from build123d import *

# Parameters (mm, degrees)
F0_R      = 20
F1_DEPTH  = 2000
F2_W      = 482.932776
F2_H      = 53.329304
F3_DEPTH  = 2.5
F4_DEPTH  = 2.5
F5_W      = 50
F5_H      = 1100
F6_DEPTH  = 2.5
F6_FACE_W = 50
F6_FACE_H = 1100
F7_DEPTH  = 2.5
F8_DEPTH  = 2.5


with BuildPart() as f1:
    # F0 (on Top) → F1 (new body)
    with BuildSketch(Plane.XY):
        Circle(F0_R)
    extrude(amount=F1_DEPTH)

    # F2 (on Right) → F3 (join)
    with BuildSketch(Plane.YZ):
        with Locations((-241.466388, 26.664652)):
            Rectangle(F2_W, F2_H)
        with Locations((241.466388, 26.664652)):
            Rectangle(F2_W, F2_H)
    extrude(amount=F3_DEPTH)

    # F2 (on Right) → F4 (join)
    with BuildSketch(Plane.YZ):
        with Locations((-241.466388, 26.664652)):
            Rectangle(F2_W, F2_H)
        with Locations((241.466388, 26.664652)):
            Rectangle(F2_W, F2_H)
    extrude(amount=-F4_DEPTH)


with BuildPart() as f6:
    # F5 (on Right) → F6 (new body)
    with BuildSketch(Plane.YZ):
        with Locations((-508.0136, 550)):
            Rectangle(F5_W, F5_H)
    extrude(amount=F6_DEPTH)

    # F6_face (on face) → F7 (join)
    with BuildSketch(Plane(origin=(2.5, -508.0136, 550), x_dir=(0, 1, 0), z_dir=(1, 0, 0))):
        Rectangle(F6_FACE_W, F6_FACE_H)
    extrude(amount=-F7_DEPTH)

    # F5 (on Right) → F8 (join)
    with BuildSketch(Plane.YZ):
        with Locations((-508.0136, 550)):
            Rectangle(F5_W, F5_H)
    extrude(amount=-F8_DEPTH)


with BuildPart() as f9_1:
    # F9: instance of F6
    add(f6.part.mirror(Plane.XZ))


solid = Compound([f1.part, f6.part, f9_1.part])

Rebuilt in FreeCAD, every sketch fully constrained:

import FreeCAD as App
import Part
import Sketcher

doc = App.newDocument("Part")
body = doc.addObject("PartDesign::Body", "Body")

# Sketch on XY plane
sketch1 = body.newObject("Sketcher::SketchObject", "Sketch")
sketch1.AttachmentSupport = (doc.getObject("XY_Plane"), [""])
sketch1.MapMode = "FlatFace"
sketch1.addGeometry(Part.Circle(App.Vector(0, 0, 0), App.Vector(0, 0, 1), 20), False)
sketch1.addConstraint(Sketcher.Constraint("Coincident", 0, 3, -1, 1))
sketch1.addConstraint(Sketcher.Constraint("Diameter", 0, 40.0))
pad1 = body.newObject("PartDesign::Pad", "Pad")
pad1.Profile = sketch1
pad1.Length = 2000

# Sketch on YZ plane
sketch2 = body.newObject("Sketcher::SketchObject", "Sketch001")
sketch2.AttachmentSupport = (doc.getObject("YZ_Plane"), [""])
sketch2.MapMode = "FlatFace"
sketch2.addGeometry(Part.LineSegment(App.Vector(-483, 53, 0), App.Vector(-483, 0, 0)), False)
sketch2.addGeometry(Part.LineSegment(App.Vector(-483, 0, 0), App.Vector(483, 0, 0)), False)
sketch2.addGeometry(Part.LineSegment(App.Vector(483, 0, 0), App.Vector(483, 53, 0)), False)
sketch2.addGeometry(Part.LineSegment(App.Vector(483, 53, 0), App.Vector(-483, 53, 0)), False)
sketch2.addConstraint(Sketcher.Constraint("Coincident", 0, 2, 1, 1))
sketch2.addConstraint(Sketcher.Constraint("Coincident", 1, 2, 2, 1))
sketch2.addConstraint(Sketcher.Constraint("Coincident", 2, 2, 3, 1))
sketch2.addConstraint(Sketcher.Constraint("Coincident", 3, 2, 0, 1))
sketch2.addConstraint(Sketcher.Constraint("Vertical", 0))
sketch2.addConstraint(Sketcher.Constraint("Horizontal", 1))
sketch2.addConstraint(Sketcher.Constraint("Vertical", 2))
sketch2.addConstraint(Sketcher.Constraint("Horizontal", 3))
sketch2.addConstraint(Sketcher.Constraint("Symmetric", 0, 2, 1, 2, -1, 1))
sketch2.addConstraint(Sketcher.Constraint("DistanceX", 1, 1, 1, 2, 965.865552))
sketch2.addConstraint(Sketcher.Constraint("DistanceY", 0, 2, 0, 1, 53.329304))
pad2 = body.newObject("PartDesign::Pad", "Pad001")
pad2.Profile = sketch2
pad2.Length = 2.5

# Sketch on YZ plane
sketch3 = body.newObject("Sketcher::SketchObject", "Sketch002")
sketch3.AttachmentSupport = (doc.getObject("YZ_Plane"), [""])
sketch3.MapMode = "FlatFace"
sketch3.addGeometry(Part.LineSegment(App.Vector(-483, 53, 0), App.Vector(-483, 0, 0)), False)
sketch3.addGeometry(Part.LineSegment(App.Vector(-483, 0, 0), App.Vector(483, 0, 0)), False)
sketch3.addGeometry(Part.LineSegment(App.Vector(483, 0, 0), App.Vector(483, 53, 0)), False)
sketch3.addGeometry(Part.LineSegment(App.Vector(483, 53, 0), App.Vector(-483, 53, 0)), False)
sketch3.addConstraint(Sketcher.Constraint("Coincident", 0, 2, 1, 1))
sketch3.addConstraint(Sketcher.Constraint("Coincident", 1, 2, 2, 1))
sketch3.addConstraint(Sketcher.Constraint("Coincident", 2, 2, 3, 1))
sketch3.addConstraint(Sketcher.Constraint("Coincident", 3, 2, 0, 1))
sketch3.addConstraint(Sketcher.Constraint("Vertical", 0))
sketch3.addConstraint(Sketcher.Constraint("Horizontal", 1))
sketch3.addConstraint(Sketcher.Constraint("Vertical", 2))
sketch3.addConstraint(Sketcher.Constraint("Horizontal", 3))
sketch3.addConstraint(Sketcher.Constraint("Symmetric", 0, 2, 1, 2, -1, 1))
sketch3.addConstraint(Sketcher.Constraint("DistanceX", 1, 1, 1, 2, 965.865552))
sketch3.addConstraint(Sketcher.Constraint("DistanceY", 0, 2, 0, 1, 53.329304))
pad3 = body.newObject("PartDesign::Pad", "Pad002")
pad3.Profile = sketch3
pad3.Length = 2.5
pad3.Reversed = True
body2 = doc.addObject("PartDesign::Body", "Body001")

# Sketch on YZ plane
sketch4 = body2.newObject("Sketcher::SketchObject", "Sketch003")
sketch4.AttachmentSupport = (doc.getObject("YZ_Plane001"), [""])
sketch4.MapMode = "FlatFace"
sketch4.addGeometry(Part.LineSegment(App.Vector(-533, 1100, 0), App.Vector(-533, 0, 0)), False)
sketch4.addGeometry(Part.LineSegment(App.Vector(-533, 0, 0), App.Vector(-483, 0, 0)), False)
sketch4.addGeometry(Part.LineSegment(App.Vector(-483, 0, 0), App.Vector(-483, 1100, 0)), False)
sketch4.addGeometry(Part.LineSegment(App.Vector(-483, 1100, 0), App.Vector(-533, 1100, 0)), False)
sketch4.addConstraint(Sketcher.Constraint("Coincident", 0, 2, 1, 1))
sketch4.addConstraint(Sketcher.Constraint("Coincident", 1, 2, 2, 1))
sketch4.addConstraint(Sketcher.Constraint("Coincident", 2, 2, 3, 1))
sketch4.addConstraint(Sketcher.Constraint("Coincident", 3, 2, 0, 1))
sketch4.addConstraint(Sketcher.Constraint("Vertical", 0))
sketch4.addConstraint(Sketcher.Constraint("Horizontal", 1))
sketch4.addConstraint(Sketcher.Constraint("Vertical", 2))
sketch4.addConstraint(Sketcher.Constraint("Horizontal", 3))
sketch4.addConstraint(Sketcher.Constraint("PointOnObject", 0, 2, -1))
sketch4.addConstraint(Sketcher.Constraint("DistanceX", 1, 1, 1, 2, 50.0))
sketch4.addConstraint(Sketcher.Constraint("DistanceY", 0, 2, 0, 1, 1100.0))
sketch4.addConstraint(Sketcher.Constraint("DistanceX", 0, 2, -1, 1, 533.0136))
pad4 = body2.newObject("PartDesign::Pad", "Pad003")
pad4.Profile = sketch4
pad4.Length = 2.5

# Sketch on YZ plane
sketch5 = body2.newObject("Sketcher::SketchObject", "Sketch004")
sketch5.AttachmentSupport = (doc.getObject("YZ_Plane001"), [""])
sketch5.MapMode = "FlatFace"
sketch5.AttachmentOffset = App.Placement(App.Vector(0, 0, 2.5), App.Rotation())
sketch5.addGeometry(Part.LineSegment(App.Vector(-533, 1100, 0), App.Vector(-533, 0, 0)), False)
sketch5.addGeometry(Part.LineSegment(App.Vector(-533, 0, 0), App.Vector(-483, 0, 0)), False)
sketch5.addGeometry(Part.LineSegment(App.Vector(-483, 0, 0), App.Vector(-483, 1100, 0)), False)
sketch5.addGeometry(Part.LineSegment(App.Vector(-483, 1100, 0), App.Vector(-533, 1100, 0)), False)
sketch5.addConstraint(Sketcher.Constraint("Coincident", 0, 2, 1, 1))
sketch5.addConstraint(Sketcher.Constraint("Coincident", 1, 2, 2, 1))
sketch5.addConstraint(Sketcher.Constraint("Coincident", 2, 2, 3, 1))
sketch5.addConstraint(Sketcher.Constraint("Coincident", 3, 2, 0, 1))
sketch5.addConstraint(Sketcher.Constraint("Vertical", 0))
sketch5.addConstraint(Sketcher.Constraint("Horizontal", 1))
sketch5.addConstraint(Sketcher.Constraint("Vertical", 2))
sketch5.addConstraint(Sketcher.Constraint("Horizontal", 3))
sketch5.addConstraint(Sketcher.Constraint("PointOnObject", 0, 2, -1))
sketch5.addConstraint(Sketcher.Constraint("DistanceX", 1, 1, 1, 2, 50.0))
sketch5.addConstraint(Sketcher.Constraint("DistanceY", 0, 2, 0, 1, 1100.0))
sketch5.addConstraint(Sketcher.Constraint("DistanceX", 0, 2, -1, 1, 533.0136))
pad5 = body2.newObject("PartDesign::Pad", "Pad004")
pad5.Profile = sketch5
pad5.Length = 2.5
pad5.Reversed = True

# Sketch on YZ plane
sketch6 = body2.newObject("Sketcher::SketchObject", "Sketch005")
sketch6.AttachmentSupport = (doc.getObject("YZ_Plane001"), [""])
sketch6.MapMode = "FlatFace"
sketch6.addGeometry(Part.LineSegment(App.Vector(-533, 1100, 0), App.Vector(-533, 0, 0)), False)
sketch6.addGeometry(Part.LineSegment(App.Vector(-533, 0, 0), App.Vector(-483, 0, 0)), False)
sketch6.addGeometry(Part.LineSegment(App.Vector(-483, 0, 0), App.Vector(-483, 1100, 0)), False)
sketch6.addGeometry(Part.LineSegment(App.Vector(-483, 1100, 0), App.Vector(-533, 1100, 0)), False)
sketch6.addConstraint(Sketcher.Constraint("Coincident", 0, 2, 1, 1))
sketch6.addConstraint(Sketcher.Constraint("Coincident", 1, 2, 2, 1))
sketch6.addConstraint(Sketcher.Constraint("Coincident", 2, 2, 3, 1))
sketch6.addConstraint(Sketcher.Constraint("Coincident", 3, 2, 0, 1))
sketch6.addConstraint(Sketcher.Constraint("Vertical", 0))
sketch6.addConstraint(Sketcher.Constraint("Horizontal", 1))
sketch6.addConstraint(Sketcher.Constraint("Vertical", 2))
sketch6.addConstraint(Sketcher.Constraint("Horizontal", 3))
sketch6.addConstraint(Sketcher.Constraint("PointOnObject", 0, 2, -1))
sketch6.addConstraint(Sketcher.Constraint("DistanceX", 1, 1, 1, 2, 50.0))
sketch6.addConstraint(Sketcher.Constraint("DistanceY", 0, 2, 0, 1, 1100.0))
sketch6.addConstraint(Sketcher.Constraint("DistanceX", 0, 2, -1, 1, 533.0136))
pad6 = body2.newObject("PartDesign::Pad", "Pad005")
pad6.Profile = sketch6
pad6.Length = 2.5
pad6.Reversed = True
body3 = doc.addObject("PartDesign::Body", "Body002")
doc.recompute()

mirroring = doc.addObject("Part::Mirroring", "Mirroring")
mirroring.Source = body2
mirroring.Base = App.Vector(0, 0, 0)
mirroring.Normal = App.Vector(0, -1, 0)
body3.BaseFeature = mirroring
doc.recompute()
mirroring.Visibility = False

doc.recompute()
